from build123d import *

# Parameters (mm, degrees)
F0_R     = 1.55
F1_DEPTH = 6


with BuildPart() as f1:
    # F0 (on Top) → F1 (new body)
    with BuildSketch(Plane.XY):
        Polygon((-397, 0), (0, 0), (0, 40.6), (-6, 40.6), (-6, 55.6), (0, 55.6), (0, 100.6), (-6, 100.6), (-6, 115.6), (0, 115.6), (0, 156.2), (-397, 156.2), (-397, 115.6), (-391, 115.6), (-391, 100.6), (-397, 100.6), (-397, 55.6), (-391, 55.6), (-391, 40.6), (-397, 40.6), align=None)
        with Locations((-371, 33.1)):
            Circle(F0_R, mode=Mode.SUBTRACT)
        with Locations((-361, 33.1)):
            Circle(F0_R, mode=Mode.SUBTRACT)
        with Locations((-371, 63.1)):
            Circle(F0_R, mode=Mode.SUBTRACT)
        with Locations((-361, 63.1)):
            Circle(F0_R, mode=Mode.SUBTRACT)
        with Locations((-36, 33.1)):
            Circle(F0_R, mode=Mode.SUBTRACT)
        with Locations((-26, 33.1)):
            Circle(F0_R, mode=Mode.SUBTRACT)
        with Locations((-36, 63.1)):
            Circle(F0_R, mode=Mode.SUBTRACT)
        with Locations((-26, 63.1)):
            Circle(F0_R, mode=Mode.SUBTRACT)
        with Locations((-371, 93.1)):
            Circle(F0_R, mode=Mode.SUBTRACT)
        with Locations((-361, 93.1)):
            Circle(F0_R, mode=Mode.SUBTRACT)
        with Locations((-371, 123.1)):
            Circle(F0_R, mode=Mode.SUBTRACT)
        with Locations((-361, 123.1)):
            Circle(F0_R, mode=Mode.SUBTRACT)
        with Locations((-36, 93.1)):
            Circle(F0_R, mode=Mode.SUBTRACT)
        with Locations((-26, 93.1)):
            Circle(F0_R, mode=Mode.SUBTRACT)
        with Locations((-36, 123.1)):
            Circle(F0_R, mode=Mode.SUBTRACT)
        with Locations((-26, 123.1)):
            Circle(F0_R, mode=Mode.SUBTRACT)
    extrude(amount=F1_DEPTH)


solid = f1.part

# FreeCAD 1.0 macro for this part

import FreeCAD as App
import Part
import Sketcher
from FreeCAD import Vector
Q = App.Units.Quantity


def add_polygon(sketch, points):
    """Adds a closed chain of lines whose ends are joined by coincident constraints."""
    first, n = sketch.GeometryCount, len(points)
    for a, b in zip(points, points[1:] + points[:1]):
        sketch.addGeometry(Part.LineSegment(App.Vector(*a, 0), App.Vector(*b, 0)), False)
    for i in range(n):
        sketch.addConstraint(Sketcher.Constraint("Coincident", first + i, 2, first + (i + 1) % n, 1))

doc = App.newDocument("Part")
body = doc.addObject("PartDesign::Body", "Body")

# Sketch on XY plane
sketch1 = body.newObject("Sketcher::SketchObject", "Sketch")
sketch1.AttachmentSupport = (doc.getObject("XY_Plane"), [""])
sketch1.MapMode = "FlatFace"
add_polygon(sketch1, [(-397, 0), (0, 0), (0, 40.6), (-6, 40.6), (-6, 55.6), (0, 55.6), (0, 100.6), (-6, 100.6), (-6, 115.6), (0, 115.6), (0, 156.2), (-397, 156.2), (-397, 115.6), (-391, 115.6), (-391, 100.6), (-397, 100.6), (-397, 55.6), (-391, 55.6), (-391, 40.6), (-397, 40.6)])  # lines 0-19
sketch1.addGeometry(Part.Circle(Vector(-371, 33.1, 0), Vector(0, 0, 1), 1.6), False)  # 20
sketch1.addGeometry(Part.Circle(Vector(-361, 33.1, 0), Vector(0, 0, 1), 1.6), False)  # 21
sketch1.addGeometry(Part.Circle(Vector(-371, 63.1, 0), Vector(0, 0, 1), 1.6), False)  # 22
sketch1.addGeometry(Part.Circle(Vector(-361, 63.1, 0), Vector(0, 0, 1), 1.6), False)  # 23
sketch1.addGeometry(Part.Circle(Vector(-36, 33.1, 0), Vector(0, 0, 1), 1.6), False)  # 24
sketch1.addGeometry(Part.Circle(Vector(-26, 33.1, 0), Vector(0, 0, 1), 1.6), False)  # 25
sketch1.addGeometry(Part.Circle(Vector(-36, 63.1, 0), Vector(0, 0, 1), 1.6), False)  # 26
sketch1.addGeometry(Part.Circle(Vector(-26, 63.1, 0), Vector(0, 0, 1), 1.6), False)  # 27
sketch1.addGeometry(Part.Circle(Vector(-371, 93.1, 0), Vector(0, 0, 1), 1.6), False)  # 28
sketch1.addGeometry(Part.Circle(Vector(-361, 93.1, 0), Vector(0, 0, 1), 1.6), False)  # 29
sketch1.addGeometry(Part.Circle(Vector(-371, 123.1, 0), Vector(0, 0, 1), 1.6), False)  # 30
sketch1.addGeometry(Part.Circle(Vector(-361, 123.1, 0), Vector(0, 0, 1), 1.6), False)  # 31
sketch1.addGeometry(Part.Circle(Vector(-36, 93.1, 0), Vector(0, 0, 1), 1.6), False)  # 32
sketch1.addGeometry(Part.Circle(Vector(-26, 93.1, 0), Vector(0, 0, 1), 1.6), False)  # 33
sketch1.addGeometry(Part.Circle(Vector(-36, 123.1, 0), Vector(0, 0, 1), 1.6), False)  # 34
sketch1.addGeometry(Part.Circle(Vector(-26, 123.1, 0), Vector(0, 0, 1), 1.6), False)  # 35
sketch1.addConstraint([
    Sketcher.Constraint("Horizontal", 0),
    Sketcher.Constraint("Vertical", 1),
    Sketcher.Constraint("Horizontal", 2),
    Sketcher.Constraint("Vertical", 3),
    Sketcher.Constraint("Horizontal", 4),
    Sketcher.Constraint("Vertical", 5),
    Sketcher.Constraint("Horizontal", 6),
    Sketcher.Constraint("Vertical", 7),
    Sketcher.Constraint("Horizontal", 8),
    Sketcher.Constraint("Vertical", 9),
    Sketcher.Constraint("Horizontal", 10),
    Sketcher.Constraint("Vertical", 11),
    Sketcher.Constraint("Horizontal", 12),
    Sketcher.Constraint("Vertical", 13),
    Sketcher.Constraint("Horizontal", 14),
    Sketcher.Constraint("Vertical", 15),
    Sketcher.Constraint("Horizontal", 16),
    Sketcher.Constraint("Vertical", 17),
    Sketcher.Constraint("Horizontal", 18),
    Sketcher.Constraint("Vertical", 19),
    Sketcher.Constraint("Coincident", 0, 2, -1, 1),
    Sketcher.Constraint("Equal", 20, 21),
    Sketcher.Constraint("Equal", 21, 22),
    Sketcher.Constraint("Equal", 22, 23),
    Sketcher.Constraint("Equal", 23, 24),
    Sketcher.Constraint("Equal", 24, 25),
    Sketcher.Constraint("Equal", 25, 26),
    Sketcher.Constraint("Equal", 26, 27),
    Sketcher.Constraint("Equal", 27, 28),
    Sketcher.Constraint("Equal", 28, 29),
    Sketcher.Constraint("Equal", 29, 30),
    Sketcher.Constraint("Equal", 30, 31),
    Sketcher.Constraint("Equal", 31, 32),
    Sketcher.Constraint("Equal", 32, 33),
    Sketcher.Constraint("Equal", 33, 34),
    Sketcher.Constraint("Equal", 34, 35),
    Sketcher.Constraint("PointOnObject", 4, 2, -2),
    Sketcher.Constraint("PointOnObject", 8, 2, -2),
    Sketcher.Constraint("Horizontal", 20, 3, 21, 3),
    Sketcher.Constraint("Horizontal", 22, 3, 23, 3),
    Sketcher.Constraint("Horizontal", 21, 3, 24, 3),
    Sketcher.Constraint("Horizontal", 24, 3, 25, 3),
    Sketcher.Constraint("Horizontal", 23, 3, 26, 3),
    Sketcher.Constraint("Horizontal", 26, 3, 27, 3),
    Sketcher.Constraint("Horizontal", 28, 3, 29, 3),
    Sketcher.Constraint("Horizontal", 30, 3, 31, 3),
    Sketcher.Constraint("Horizontal", 29, 3, 32, 3),
    Sketcher.Constraint("Horizontal", 32, 3, 33, 3),
    Sketcher.Constraint("Horizontal", 31, 3, 34, 3),
    Sketcher.Constraint("Horizontal", 34, 3, 35, 3),
    Sketcher.Constraint("Horizontal", 8, 2, 11, 2),
    Sketcher.Constraint("Horizontal", 6, 2, 13, 2),
    Sketcher.Constraint("Horizontal", 4, 2, 15, 2),
    Sketcher.Constraint("Horizontal", 2, 2, 17, 2),
    Sketcher.Constraint("Vertical", 20, 3, 22, 3),
    Sketcher.Constraint("Vertical", 21, 3, 23, 3),
    Sketcher.Constraint("Vertical", 24, 3, 26, 3),
    Sketcher.Constraint("Vertical", 25, 3, 27, 3),
    Sketcher.Constraint("Vertical", 22, 3, 28, 3),
    Sketcher.Constraint("Vertical", 23, 3, 29, 3),
    Sketcher.Constraint("Vertical", 28, 3, 30, 3),
    Sketcher.Constraint("Vertical", 29, 3, 31, 3),
    Sketcher.Constraint("Vertical", 26, 3, 32, 3),
    Sketcher.Constraint("Vertical", 27, 3, 33, 3),
    Sketcher.Constraint("Vertical", 32, 3, 34, 3),
    Sketcher.Constraint("Vertical", 33, 3, 35, 3),
    Sketcher.Constraint("Vertical", 3, 2, 6, 2),
    Sketcher.Constraint("Vertical", 11, 2, 14, 2),
    Sketcher.Constraint("Vertical", 13, 2, 16, 2),
    Sketcher.Constraint("Vertical", 15, 2, 18, 2),
    Sketcher.Constraint("Equal", 8, 12),
    Sketcher.Constraint("Equal", 3, 7),
    Sketcher.Constraint("Equal", 1, 9),
    Sketcher.Constraint("Diameter", 20, Q("3.1 mm")),
    Sketcher.Constraint("DistanceX", 0, 1, 0, 2, Q("397 mm")),
    Sketcher.Constraint("DistanceX", 2, 2, 2, 1, Q("6 mm")),
    Sketcher.Constraint("DistanceY", 3, 1, 3, 2, Q("15 mm")),
    Sketcher.Constraint("DistanceY", 5, 1, 5, 2, Q("45 mm")),
    Sketcher.Constraint("DistanceY", 1, 1, 1, 2, Q("40.6 mm")),
    Sketcher.Constraint("DistanceX", 20, 3, -1, 1, Q("371 mm")),
    Sketcher.Constraint("DistanceX", 21, 3, -1, 1, Q("361 mm")),
    Sketcher.Constraint("DistanceX", 24, 3, -1, 1, Q("36 mm")),
    Sketcher.Constraint("DistanceX", 25, 3, -1, 1, Q("26 mm")),
    Sketcher.Constraint("DistanceY", 20, 3, 22, 3, Q("30 mm")),
    Sketcher.Constraint("DistanceY", 22, 3, 28, 3, Q("30 mm")),
    Sketcher.Constraint("DistanceY", 28, 3, 30, 3, Q("30 mm")),
    Sketcher.Constraint("DistanceY", -1, 1, 20, 3, Q("33.1 mm")),
])
pad1 = body.newObject("PartDesign::Pad", "Pad")
pad1.Profile = sketch1
pad1.Length = 6

doc.recompute()
